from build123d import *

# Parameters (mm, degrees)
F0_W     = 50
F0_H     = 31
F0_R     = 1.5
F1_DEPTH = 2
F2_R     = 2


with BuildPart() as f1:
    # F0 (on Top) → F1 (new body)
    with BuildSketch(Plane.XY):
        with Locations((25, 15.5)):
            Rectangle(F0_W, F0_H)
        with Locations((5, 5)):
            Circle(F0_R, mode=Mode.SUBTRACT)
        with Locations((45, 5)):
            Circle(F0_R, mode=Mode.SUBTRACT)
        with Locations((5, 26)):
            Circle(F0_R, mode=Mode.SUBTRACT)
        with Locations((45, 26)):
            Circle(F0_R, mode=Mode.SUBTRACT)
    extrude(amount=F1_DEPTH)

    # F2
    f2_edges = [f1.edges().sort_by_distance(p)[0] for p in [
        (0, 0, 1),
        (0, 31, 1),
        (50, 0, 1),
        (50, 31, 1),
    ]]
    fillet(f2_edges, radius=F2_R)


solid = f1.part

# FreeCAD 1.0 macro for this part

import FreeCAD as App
import Part
import Sketcher

V = App.Vector


def edges_at(feature, points):
    """Names of the edges that pass closest to the given points."""
    edges = feature.Shape.Edges
    near = lambda p: min(range(len(edges)), key=lambda i: edges[i].distToShape(Part.Vertex(*p))[0])
    return sorted({f"Edge{near(p) + 1}" for p in points})


def add_polygon(sketch, points):
    """Adds a closed chain of lines whose ends are joined by coincident constraints."""
    first, n = sketch.GeometryCount, len(points)
    for a, b in zip(points, points[1:] + points[:1]):
        sketch.addGeometry(Part.LineSegment(App.Vector(*a, 0), App.Vector(*b, 0)), False)
    for i in range(n):
        sketch.addConstraint(Sketcher.Constraint("Coincident", first + i, 2, first + (i + 1) % n, 1))

doc = App.newDocument("Part")
body = doc.addObject("PartDesign::Body", "Body")

sketch1 = body.newObject("Sketcher::SketchObject", "Sketch")
sketch1.AttachmentSupport = (doc.getObject("XY_Plane"), [""])
sketch1.MapMode = "FlatFace"
add_polygon(sketch1, [(0, 31), (0, 0), (50, 0), (50, 31)])
sketch1.addGeometry(Part.Circle(V(5, 5, 0), V(0, 0, 1), 1.5), False)
sketch1.addGeometry(Part.Circle(V(45, 5, 0), V(0, 0, 1), 1.5), False)
sketch1.addGeometry(Part.Circle(V(5, 26, 0), V(0, 0, 1), 1.5), False)
sketch1.addGeometry(Part.Circle(V(45, 26, 0), V(0, 0, 1), 1.5), False)
sketch1.addConstraint([
    Sketcher.Constraint("Vertical", 0),
    Sketcher.Constraint("Horizontal", 1),
    Sketcher.Constraint("Vertical", 2),
    Sketcher.Constraint("Horizontal", 3),
    Sketcher.Constraint("Coincident", 0, 2, -1, 1),
    Sketcher.Constraint("Equal", 4, 5),
    Sketcher.Constraint("Equal", 5, 6),
    Sketcher.Constraint("Equal", 6, 7),
    Sketcher.Constraint("Horizontal", 4, 3, 5, 3),
    Sketcher.Constraint("Horizontal", 6, 3, 7, 3),
    Sketcher.Constraint("Vertical", 4, 3, 6, 3),
    Sketcher.Constraint("Vertical", 5, 3, 7, 3),
    Sketcher.Constraint("Diameter", 4, 3.0),
    Sketcher.Constraint("DistanceX", 1, 1, 1, 2, 50.0),
    Sketcher.Constraint("DistanceY", 0, 2, 0, 1, 31.0),
    Sketcher.Constraint("DistanceX", -1, 1, 4, 3, 5.0),
    Sketcher.Constraint("DistanceY", -1, 1, 4, 3, 5.0),
    Sketcher.Constraint("DistanceX", -1, 1, 5, 3, 45.0),
    Sketcher.Constraint("DistanceY", -1, 1, 6, 3, 26.0),
])
pad1 = body.newObject("PartDesign::Pad", "Pad")
pad1.Profile = sketch1
pad1.Length = 2
doc.recompute()

fillet = body.newObject("PartDesign::Fillet", "Fillet")
fillet.Base = (pad1, edges_at(pad1, [
    (0, 0, 1),
    (0, 31, 1),
    (50, 0, 1),
    (50, 31, 1),
]))
fillet.Radius = 2

doc.recompute()
